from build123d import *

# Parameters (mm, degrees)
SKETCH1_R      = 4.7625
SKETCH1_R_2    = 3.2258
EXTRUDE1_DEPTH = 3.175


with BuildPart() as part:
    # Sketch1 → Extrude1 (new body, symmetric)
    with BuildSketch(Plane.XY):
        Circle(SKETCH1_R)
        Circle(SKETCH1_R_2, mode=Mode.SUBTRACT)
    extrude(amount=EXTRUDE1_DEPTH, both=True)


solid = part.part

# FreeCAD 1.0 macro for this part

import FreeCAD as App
import Part
import Sketcher
Q = App.Units.Quantity

doc = App.newDocument("Part")
body = doc.addObject("PartDesign::Body", "Body")

# Sketch on XY plane
sketch1 = body.newObject("Sketcher::SketchObject", "Sketch")
sketch1.AttachmentSupport = (doc.getObject("XY_Plane"), [""])
sketch1.MapMode = "FlatFace"
sketch1.addGeometry([
    Part.Circle(App.Vector(0, 0, 0), App.Vector(0, 0, 1), 4.8),
    Part.Circle(App.Vector(0, 0, 0), App.Vector(0, 0, 1), 3.2),
], False)
sketch1.addConstraint([
    Sketcher.Constraint("Coincident", 0, 3, -1, 1),
    Sketcher.Constraint("Coincident", 1, 3, -1, 1),
    Sketcher.Constraint("Diameter", 0, Q("0.375 in")),
    Sketcher.Constraint("Diameter", 1, Q("0.254 in")),
])
pad1 = body.newObject("PartDesign::Pad", "Pad")
pad1.Profile = sketch1
pad1.Length = Q("0.25 in")
pad1.Midplane = True

doc.recompute()
